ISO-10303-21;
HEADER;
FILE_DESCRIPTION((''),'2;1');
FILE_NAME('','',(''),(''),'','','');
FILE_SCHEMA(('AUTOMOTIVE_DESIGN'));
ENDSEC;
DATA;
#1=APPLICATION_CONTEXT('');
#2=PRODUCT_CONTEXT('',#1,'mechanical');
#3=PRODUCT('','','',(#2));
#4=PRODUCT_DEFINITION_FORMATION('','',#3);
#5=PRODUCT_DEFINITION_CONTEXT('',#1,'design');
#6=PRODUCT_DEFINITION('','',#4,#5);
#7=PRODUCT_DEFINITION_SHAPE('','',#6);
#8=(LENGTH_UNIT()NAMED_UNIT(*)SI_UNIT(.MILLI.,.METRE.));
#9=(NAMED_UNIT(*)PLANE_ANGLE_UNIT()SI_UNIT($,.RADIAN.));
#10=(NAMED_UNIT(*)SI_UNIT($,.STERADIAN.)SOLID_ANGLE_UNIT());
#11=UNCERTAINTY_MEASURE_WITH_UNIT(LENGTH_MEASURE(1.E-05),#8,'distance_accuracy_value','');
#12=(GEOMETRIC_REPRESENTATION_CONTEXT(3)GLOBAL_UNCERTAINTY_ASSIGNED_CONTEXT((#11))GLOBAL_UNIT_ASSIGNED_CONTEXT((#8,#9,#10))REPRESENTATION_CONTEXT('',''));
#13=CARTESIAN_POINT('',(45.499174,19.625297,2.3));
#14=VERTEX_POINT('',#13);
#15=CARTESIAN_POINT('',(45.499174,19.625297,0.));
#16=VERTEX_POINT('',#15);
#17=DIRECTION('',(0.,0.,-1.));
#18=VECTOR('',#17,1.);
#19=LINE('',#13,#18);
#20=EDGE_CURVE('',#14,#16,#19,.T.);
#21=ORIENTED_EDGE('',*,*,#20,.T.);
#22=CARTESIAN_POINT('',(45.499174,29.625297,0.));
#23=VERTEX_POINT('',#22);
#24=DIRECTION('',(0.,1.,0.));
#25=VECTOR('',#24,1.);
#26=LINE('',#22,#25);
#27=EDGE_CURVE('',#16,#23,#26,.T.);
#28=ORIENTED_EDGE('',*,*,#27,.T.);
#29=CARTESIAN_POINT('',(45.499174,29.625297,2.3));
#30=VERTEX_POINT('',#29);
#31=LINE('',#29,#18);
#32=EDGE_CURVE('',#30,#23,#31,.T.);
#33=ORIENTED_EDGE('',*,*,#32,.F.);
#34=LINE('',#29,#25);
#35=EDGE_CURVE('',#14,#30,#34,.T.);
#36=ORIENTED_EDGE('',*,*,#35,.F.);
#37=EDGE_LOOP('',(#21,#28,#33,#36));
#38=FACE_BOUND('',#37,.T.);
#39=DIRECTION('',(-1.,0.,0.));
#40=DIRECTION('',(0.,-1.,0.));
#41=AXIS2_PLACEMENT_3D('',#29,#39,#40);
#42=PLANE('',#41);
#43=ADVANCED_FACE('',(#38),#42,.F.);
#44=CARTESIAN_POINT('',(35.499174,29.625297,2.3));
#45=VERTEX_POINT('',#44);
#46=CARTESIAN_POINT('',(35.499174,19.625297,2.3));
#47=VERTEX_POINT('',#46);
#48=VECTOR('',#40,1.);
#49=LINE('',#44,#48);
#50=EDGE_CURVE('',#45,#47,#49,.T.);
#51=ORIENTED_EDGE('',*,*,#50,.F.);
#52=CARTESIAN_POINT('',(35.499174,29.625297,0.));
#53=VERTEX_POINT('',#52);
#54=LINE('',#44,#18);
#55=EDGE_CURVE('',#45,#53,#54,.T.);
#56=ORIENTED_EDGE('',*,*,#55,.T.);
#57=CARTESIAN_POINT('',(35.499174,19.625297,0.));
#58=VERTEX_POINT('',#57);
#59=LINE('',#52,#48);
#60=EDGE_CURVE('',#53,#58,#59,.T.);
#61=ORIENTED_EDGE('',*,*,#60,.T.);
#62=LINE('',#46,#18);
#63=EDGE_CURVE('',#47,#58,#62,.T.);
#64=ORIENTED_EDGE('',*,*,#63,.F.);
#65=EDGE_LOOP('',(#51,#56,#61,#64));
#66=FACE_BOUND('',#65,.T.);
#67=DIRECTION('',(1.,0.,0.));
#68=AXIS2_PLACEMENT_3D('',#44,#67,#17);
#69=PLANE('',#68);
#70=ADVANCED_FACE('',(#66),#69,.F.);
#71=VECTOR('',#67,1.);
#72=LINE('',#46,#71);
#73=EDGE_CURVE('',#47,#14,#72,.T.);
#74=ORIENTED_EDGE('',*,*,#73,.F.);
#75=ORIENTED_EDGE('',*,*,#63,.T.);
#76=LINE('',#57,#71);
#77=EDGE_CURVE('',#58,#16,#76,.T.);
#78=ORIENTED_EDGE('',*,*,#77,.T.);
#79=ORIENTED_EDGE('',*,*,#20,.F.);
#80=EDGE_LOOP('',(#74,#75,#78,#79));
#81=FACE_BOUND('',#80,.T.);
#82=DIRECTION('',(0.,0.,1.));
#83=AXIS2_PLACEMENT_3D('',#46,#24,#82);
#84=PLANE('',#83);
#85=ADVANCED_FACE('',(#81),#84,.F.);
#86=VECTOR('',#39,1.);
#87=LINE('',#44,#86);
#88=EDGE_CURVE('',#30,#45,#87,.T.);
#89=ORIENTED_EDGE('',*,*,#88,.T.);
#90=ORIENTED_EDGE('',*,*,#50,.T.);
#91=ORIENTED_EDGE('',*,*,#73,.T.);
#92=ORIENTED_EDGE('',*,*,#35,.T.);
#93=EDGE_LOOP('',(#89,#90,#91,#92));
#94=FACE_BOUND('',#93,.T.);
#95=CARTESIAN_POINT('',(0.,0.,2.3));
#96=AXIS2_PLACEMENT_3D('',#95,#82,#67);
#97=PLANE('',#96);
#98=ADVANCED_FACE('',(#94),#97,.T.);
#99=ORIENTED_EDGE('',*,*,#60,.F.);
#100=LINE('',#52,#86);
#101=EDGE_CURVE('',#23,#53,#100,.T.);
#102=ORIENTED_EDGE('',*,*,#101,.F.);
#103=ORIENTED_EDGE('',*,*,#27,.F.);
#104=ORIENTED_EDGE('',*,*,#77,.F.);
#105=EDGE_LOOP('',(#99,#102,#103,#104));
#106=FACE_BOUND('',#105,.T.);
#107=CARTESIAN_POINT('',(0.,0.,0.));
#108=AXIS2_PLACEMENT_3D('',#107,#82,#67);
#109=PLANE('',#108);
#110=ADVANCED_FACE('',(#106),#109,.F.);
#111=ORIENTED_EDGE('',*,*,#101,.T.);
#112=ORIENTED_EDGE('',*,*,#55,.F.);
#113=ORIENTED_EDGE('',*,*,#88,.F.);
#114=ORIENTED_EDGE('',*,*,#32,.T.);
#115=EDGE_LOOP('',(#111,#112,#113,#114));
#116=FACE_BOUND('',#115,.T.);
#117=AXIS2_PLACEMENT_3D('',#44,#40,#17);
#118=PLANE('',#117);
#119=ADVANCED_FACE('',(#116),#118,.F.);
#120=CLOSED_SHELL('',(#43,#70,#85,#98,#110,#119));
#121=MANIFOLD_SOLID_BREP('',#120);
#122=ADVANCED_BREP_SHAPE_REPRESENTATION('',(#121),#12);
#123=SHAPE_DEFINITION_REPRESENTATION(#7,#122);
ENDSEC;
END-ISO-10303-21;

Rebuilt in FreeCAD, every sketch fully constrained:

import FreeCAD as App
import Part
import Sketcher

V = App.Vector
Q = App.Units.Quantity

doc = App.newDocument("Part")
params = doc.addObject("Spreadsheet::Sheet", "Params")
for row, (alias, value) in enumerate([
    ("sketch1_width", "10 mm"),
    ("pad1_length", "2.3 mm"),
], start=1):
    params.set(f"A{row}", alias)
    params.set(f"B{row}", "=" + value)
    params.setAlias(f"B{row}", alias)

body = doc.addObject("PartDesign::Body", "Body")

sketch1 = body.newObject("Sketcher::SketchObject", "Sketch")
sketch1.AttachmentSupport = (doc.getObject("XY_Plane"), [""])
sketch1.MapMode = "FlatFace"
sketch1.addGeometry(Part.LineSegment(V(35, 30, 0), V(35, 20, 0)), False)
sketch1.addGeometry(Part.LineSegment(V(35, 20, 0), V(45, 20, 0)), False)
sketch1.addGeometry(Part.LineSegment(V(45, 20, 0), V(45, 30, 0)), False)
sketch1.addGeometry(Part.LineSegment(V(45, 30, 0), V(35, 30, 0)), False)
sketch1.addConstraint(Sketcher.Constraint("Coincident", 0, 2, 1, 1))
sketch1.addConstraint(Sketcher.Constraint("Coincident", 1, 2, 2, 1))
sketch1.addConstraint(Sketcher.Constraint("Coincident", 2, 2, 3, 1))
sketch1.addConstraint(Sketcher.Constraint("Coincident", 3, 2, 0, 1))
sketch1.addConstraint(Sketcher.Constraint("Vertical", 0))
sketch1.addConstraint(Sketcher.Constraint("Horizontal", 1))
sketch1.addConstraint(Sketcher.Constraint("Vertical", 2))
sketch1.addConstraint(Sketcher.Constraint("Horizontal", 3))
sketch1.addConstraint(Sketcher.Constraint("Equal", 3, 0))
sketch1.addConstraint(Sketcher.Constraint("DistanceX", 1, 1, 1, 2, Q("10 mm")))
sketch1.addConstraint(Sketcher.Constraint("DistanceX", -1, 1, 0, 2, Q("35.499174 mm")))
sketch1.addConstraint(Sketcher.Constraint("DistanceY", -1, 1, 0, 2, Q("19.625297 mm")))
sketch1.setExpression("Constraints[9]", "Params.sketch1_width")
pad1 = body.newObject("PartDesign::Pad", "Pad")
pad1.Profile = sketch1
pad1.setExpression("Length", "Params.pad1_length")

doc.recompute()
